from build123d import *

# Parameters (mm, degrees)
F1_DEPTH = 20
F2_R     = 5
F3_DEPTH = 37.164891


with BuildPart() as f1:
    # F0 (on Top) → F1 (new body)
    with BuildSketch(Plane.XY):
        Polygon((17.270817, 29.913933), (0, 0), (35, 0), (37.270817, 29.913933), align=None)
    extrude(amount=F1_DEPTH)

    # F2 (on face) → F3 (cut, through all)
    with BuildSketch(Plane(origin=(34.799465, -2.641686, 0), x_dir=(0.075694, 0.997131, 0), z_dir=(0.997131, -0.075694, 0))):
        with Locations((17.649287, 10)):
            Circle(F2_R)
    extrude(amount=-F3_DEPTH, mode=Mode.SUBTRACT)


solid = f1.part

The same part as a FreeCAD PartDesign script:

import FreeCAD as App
import Part
import Sketcher
Q = App.Units.Quantity


def add_polygon(sketch, points):
    """Adds a closed chain of lines whose ends are joined by coincident constraints."""
    first, n = sketch.GeometryCount, len(points)
    for a, b in zip(points, points[1:] + points[:1]):
        sketch.addGeometry(Part.LineSegment(App.Vector(*a, 0), App.Vector(*b, 0)), False)
    for i in range(n):
        sketch.addConstraint(Sketcher.Constraint("Coincident", first + i, 2, first + (i + 1) % n, 1))

doc = App.newDocument("Part")
params = doc.addObject("Spreadsheet::Sheet", "Params")
for row, (alias, value) in enumerate([
    ("sketch1_width", "35 mm"),
    ("sketch1_width2", "20 mm"),
    ("sketch1_length", "30 mm"),
    ("pad1_length", "20 mm"),
    ("sketch2_diameter", "10 mm"),
], start=1):
    params.set(f"A{row}", alias)
    params.set(f"B{row}", "=" + value)
    params.setAlias(f"B{row}", alias)

body = doc.addObject("PartDesign::Body", "Body")

# Sketch on XY plane
sketch1 = doc.addObject("Sketcher::SketchObject", "Sketch")
body.addObject(sketch1)
sketch1.AttachmentSupport = (doc.XY_Plane, [""])
sketch1.MapMode = "FlatFace"
add_polygon(sketch1, [(17.270817, 29.913933), (0, 0), (35, 0), (37.270817, 29.913933)])  # lines 0-3
sketch1.addConstraint([
    Sketcher.Constraint("Horizontal", 1),
    Sketcher.Constraint("Horizontal", 3),
    Sketcher.Constraint("Coincident", 0, 2, -1, 1),
    Sketcher.Constraint("DistanceX", 1, 1, 1, 2, 35.0),
    Sketcher.Constraint("DistanceX", 3, 2, 3, 1, 20.0),
    Sketcher.Constraint("Angle", 0, Q("-120 deg")),
    Sketcher.Constraint("Distance", 2, 30.0),
])
sketch1.setExpression("Constraints[7]", "Params.sketch1_width")
sketch1.setExpression("Constraints[8]", "Params.sketch1_width2")
sketch1.setExpression("Constraints[10]", "Params.sketch1_length")
pad1 = doc.addObject("PartDesign::Pad", "Pad")
body.addObject(pad1)
pad1.Profile = sketch1
pad1.setExpression("Length", "Params.pad1_length")

# Sketch on an angled plane
sketch2 = doc.addObject("Sketcher::SketchObject", "Sketch001")
body.addObject(sketch2)
sketch2.Placement = App.Placement(App.Vector(34.799465, -2.641686, 0), App.Rotation(App.Vector(0.075694007, 0.997131093, 0), App.Vector(0, 0, 0.999999999), App.Vector(0.997131093, -0.075694007, 0), "ZXY"))
sketch2.addGeometry(Part.Circle(App.Vector(17.649287, 10, 0), App.Vector(0, 0, 1), 5), False)
sketch2.addConstraint([
    Sketcher.Constraint("Diameter", 0, 10.0),
    Sketcher.Constraint("DistanceY", -1, 1, 0, 3, 10.0),
    Sketcher.Constraint("DistanceX", -1, 1, 0, 3, 17.649287),
])
sketch2.setExpression("Constraints[0]", "Params.sketch2_diameter")
pocket1 = doc.addObject("PartDesign::Pocket", "Pocket")
body.addObject(pocket1)
pocket1.Profile = sketch2
pocket1.Type = "ThroughAll"

doc.recompute()
